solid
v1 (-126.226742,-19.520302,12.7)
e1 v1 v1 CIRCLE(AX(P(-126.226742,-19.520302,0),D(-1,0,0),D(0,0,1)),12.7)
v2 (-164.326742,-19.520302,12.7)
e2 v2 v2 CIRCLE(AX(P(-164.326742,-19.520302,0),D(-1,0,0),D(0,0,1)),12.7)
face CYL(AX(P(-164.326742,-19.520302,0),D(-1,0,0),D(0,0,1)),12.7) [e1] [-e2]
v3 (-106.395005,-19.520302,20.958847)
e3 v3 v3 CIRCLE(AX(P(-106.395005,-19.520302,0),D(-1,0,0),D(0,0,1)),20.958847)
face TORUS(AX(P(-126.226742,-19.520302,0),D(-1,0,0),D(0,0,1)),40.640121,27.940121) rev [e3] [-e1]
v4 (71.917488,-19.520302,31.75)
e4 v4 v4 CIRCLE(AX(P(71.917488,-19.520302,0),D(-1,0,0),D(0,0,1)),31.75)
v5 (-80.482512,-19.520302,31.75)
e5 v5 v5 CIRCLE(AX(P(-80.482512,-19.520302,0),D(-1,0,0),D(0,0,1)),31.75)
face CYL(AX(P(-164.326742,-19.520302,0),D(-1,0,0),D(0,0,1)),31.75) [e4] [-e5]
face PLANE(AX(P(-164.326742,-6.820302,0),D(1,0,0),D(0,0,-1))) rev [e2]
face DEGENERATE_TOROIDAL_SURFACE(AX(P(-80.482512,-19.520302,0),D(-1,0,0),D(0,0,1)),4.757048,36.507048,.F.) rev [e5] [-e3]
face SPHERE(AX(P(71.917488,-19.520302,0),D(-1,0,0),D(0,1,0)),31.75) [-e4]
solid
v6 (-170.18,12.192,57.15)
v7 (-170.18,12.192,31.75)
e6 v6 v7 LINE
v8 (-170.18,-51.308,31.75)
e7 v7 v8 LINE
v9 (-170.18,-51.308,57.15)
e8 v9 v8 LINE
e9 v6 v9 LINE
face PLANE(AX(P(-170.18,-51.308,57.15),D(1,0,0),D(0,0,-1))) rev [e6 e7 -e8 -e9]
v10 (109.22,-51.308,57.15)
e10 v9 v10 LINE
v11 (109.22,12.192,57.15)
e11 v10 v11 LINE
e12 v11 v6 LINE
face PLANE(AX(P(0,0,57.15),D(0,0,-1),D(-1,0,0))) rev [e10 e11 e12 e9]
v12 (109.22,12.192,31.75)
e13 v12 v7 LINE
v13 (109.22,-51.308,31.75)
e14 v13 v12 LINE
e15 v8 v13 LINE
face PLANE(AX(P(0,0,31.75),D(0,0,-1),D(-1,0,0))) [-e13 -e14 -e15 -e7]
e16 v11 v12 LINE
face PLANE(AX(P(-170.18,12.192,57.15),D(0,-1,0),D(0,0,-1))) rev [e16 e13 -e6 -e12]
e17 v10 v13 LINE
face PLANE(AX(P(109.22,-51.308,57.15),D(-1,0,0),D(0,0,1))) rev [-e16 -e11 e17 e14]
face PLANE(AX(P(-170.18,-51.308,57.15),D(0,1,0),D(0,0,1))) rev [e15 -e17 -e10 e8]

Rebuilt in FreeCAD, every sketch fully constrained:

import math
import FreeCAD as App
import Part
import Sketcher
from FreeCAD import Vector
Q = App.Units.Quantity

doc = App.newDocument("Part")
body = doc.addObject("PartDesign::Body", "Body")

# Sketch on XY plane
sketch1 = body.newObject("Sketcher::SketchObject", "Sketch")
sketch1.AttachmentSupport = (doc.getObject("XY_Plane"), [""])
sketch1.MapMode = "FlatFace"
sketch1.addGeometry([
    Part.LineSegment(Vector(-126.226742, -6.820302, 0), Vector(-164.326742, -6.820302, 0)),  # 0
    Part.LineSegment(Vector(-164.326742, -6.820302, 0), Vector(-164.326742, -19.520302, 0)),  # 1
    Part.LineSegment(Vector(-164.326742, -19.520302, 0), Vector(103.667488, -19.520302, 0)),  # 2
    Part.ArcOfCircle(Part.Circle(Vector(71.917488, -19.520302, 0), Vector(0, 0, 1), 31.75), math.radians(0), math.radians(90)),  # 3
    Part.LineSegment(Vector(71.917488, 12.229698, 0), Vector(-80.482512, 12.229698, 0)),  # 4
    Part.ArcOfCircle(Part.Circle(Vector(-80.482512, -24.27735, 0), Vector(0, 0, 1), 36.507048), math.radians(90), math.radians(135.218178)),  # 5
    Part.ArcOfCircle(Part.Circle(Vector(-126.226742, 21.119819, 0), Vector(0, 0, 1), 27.940121), math.radians(-90), math.radians(-44.781822)),  # 6
], False)
sketch1.addGeometry(Part.LineSegment(Vector(-164.326742, -19.520302, 0), Vector(103.667488, -19.520302, 0)), True)  # axis
sketch1.addConstraint([
    Sketcher.Constraint("Coincident", 0, 2, 1, 1),
    Sketcher.Constraint("Coincident", 1, 2, 2, 1),
    Sketcher.Constraint("Coincident", 2, 2, 3, 1),
    Sketcher.Constraint("Tangent", 3, 2, 4, 1),
    Sketcher.Constraint("Tangent", 4, 2, 5, 1),
    Sketcher.Constraint("Tangent", 5, 2, 6, 2),
    Sketcher.Constraint("Tangent", 6, 1, 0, 1),
    Sketcher.Constraint("Horizontal", 0),
    Sketcher.Constraint("Vertical", 1),
    Sketcher.Constraint("Horizontal", 2),
    Sketcher.Constraint("Horizontal", 4),
    Sketcher.Constraint("Horizontal", 7),
    Sketcher.Constraint("Coincident", 7, 1, 1, 2),
    Sketcher.Constraint("Horizontal", 3, 3, 1, 2),
    Sketcher.Constraint("Equal", 2, 7),
    Sketcher.Constraint("DistanceX", 4, 2, 4, 1, Q("6 in")),
    Sketcher.Constraint("Radius", 3, Q("1.25 in")),
    Sketcher.Constraint("DistanceX", 0, 2, 0, 1, Q("1.5 in")),
    Sketcher.Constraint("DistanceY", 1, 2, 1, 1, Q("0.5 in")),
    Sketcher.Constraint("Radius", 5, Q("36.507048 mm")),
    Sketcher.Constraint("Radius", 6, Q("27.940121 mm")),
    Sketcher.Constraint("DistanceY", 3, 3, -1, 1, Q("19.520302 mm")),
    Sketcher.Constraint("DistanceX", -1, 1, 3, 3, Q("71.917488 mm")),
])
revolution = body.newObject("PartDesign::Revolution", "Revolution")
revolution.Profile = sketch1
revolution.ReferenceAxis = (sketch1, ["Axis0"])
revolution.Angle = 360
body2 = doc.addObject("PartDesign::Body", "Body001")

# Sketch on XY plane
sketch2 = body2.newObject("Sketcher::SketchObject", "Sketch001")
sketch2.AttachmentSupport = (doc.getObject("XY_Plane001"), [""])
sketch2.MapMode = "FlatFace"
sketch2.AttachmentOffset = App.Placement(Vector(0, 0, 1.25 * 25.4), App.Rotation())
sketch2.addGeometry([
    Part.LineSegment(Vector(-170.18, 12.192, 0), Vector(-170.18, -51.308, 0)),
    Part.LineSegment(Vector(-170.18, -51.308, 0), Vector(109.22, -51.308, 0)),
    Part.LineSegment(Vector(109.22, -51.308, 0), Vector(109.22, 12.192, 0)),
    Part.LineSegment(Vector(109.22, 12.192, 0), Vector(-170.18, 12.192, 0)),
], False)
sketch2.addConstraint([
    Sketcher.Constraint("Coincident", 0, 2, 1, 1),
    Sketcher.Constraint("Coincident", 1, 2, 2, 1),
    Sketcher.Constraint("Coincident", 2, 2, 3, 1),
    Sketcher.Constraint("Coincident", 3, 2, 0, 1),
    Sketcher.Constraint("Vertical", 0),
    Sketcher.Constraint("Horizontal", 1),
    Sketcher.Constraint("Vertical", 2),
    Sketcher.Constraint("Horizontal", 3),
    Sketcher.Constraint("DistanceX", 1, 1, 1, 2, Q("11 in")),
    Sketcher.Constraint("DistanceY", 0, 2, 0, 1, Q("2.5 in")),
    Sketcher.Constraint("DistanceX", 0, 2, -1, 1, Q("6.7 in")),
    Sketcher.Constraint("DistanceY", 0, 2, -1, 1, Q("2.02 in")),
])
pad1 = body2.newObject("PartDesign::Pad", "Pad")
pad1.Profile = sketch2
pad1.Length = Q("1 in")

doc.recompute()
